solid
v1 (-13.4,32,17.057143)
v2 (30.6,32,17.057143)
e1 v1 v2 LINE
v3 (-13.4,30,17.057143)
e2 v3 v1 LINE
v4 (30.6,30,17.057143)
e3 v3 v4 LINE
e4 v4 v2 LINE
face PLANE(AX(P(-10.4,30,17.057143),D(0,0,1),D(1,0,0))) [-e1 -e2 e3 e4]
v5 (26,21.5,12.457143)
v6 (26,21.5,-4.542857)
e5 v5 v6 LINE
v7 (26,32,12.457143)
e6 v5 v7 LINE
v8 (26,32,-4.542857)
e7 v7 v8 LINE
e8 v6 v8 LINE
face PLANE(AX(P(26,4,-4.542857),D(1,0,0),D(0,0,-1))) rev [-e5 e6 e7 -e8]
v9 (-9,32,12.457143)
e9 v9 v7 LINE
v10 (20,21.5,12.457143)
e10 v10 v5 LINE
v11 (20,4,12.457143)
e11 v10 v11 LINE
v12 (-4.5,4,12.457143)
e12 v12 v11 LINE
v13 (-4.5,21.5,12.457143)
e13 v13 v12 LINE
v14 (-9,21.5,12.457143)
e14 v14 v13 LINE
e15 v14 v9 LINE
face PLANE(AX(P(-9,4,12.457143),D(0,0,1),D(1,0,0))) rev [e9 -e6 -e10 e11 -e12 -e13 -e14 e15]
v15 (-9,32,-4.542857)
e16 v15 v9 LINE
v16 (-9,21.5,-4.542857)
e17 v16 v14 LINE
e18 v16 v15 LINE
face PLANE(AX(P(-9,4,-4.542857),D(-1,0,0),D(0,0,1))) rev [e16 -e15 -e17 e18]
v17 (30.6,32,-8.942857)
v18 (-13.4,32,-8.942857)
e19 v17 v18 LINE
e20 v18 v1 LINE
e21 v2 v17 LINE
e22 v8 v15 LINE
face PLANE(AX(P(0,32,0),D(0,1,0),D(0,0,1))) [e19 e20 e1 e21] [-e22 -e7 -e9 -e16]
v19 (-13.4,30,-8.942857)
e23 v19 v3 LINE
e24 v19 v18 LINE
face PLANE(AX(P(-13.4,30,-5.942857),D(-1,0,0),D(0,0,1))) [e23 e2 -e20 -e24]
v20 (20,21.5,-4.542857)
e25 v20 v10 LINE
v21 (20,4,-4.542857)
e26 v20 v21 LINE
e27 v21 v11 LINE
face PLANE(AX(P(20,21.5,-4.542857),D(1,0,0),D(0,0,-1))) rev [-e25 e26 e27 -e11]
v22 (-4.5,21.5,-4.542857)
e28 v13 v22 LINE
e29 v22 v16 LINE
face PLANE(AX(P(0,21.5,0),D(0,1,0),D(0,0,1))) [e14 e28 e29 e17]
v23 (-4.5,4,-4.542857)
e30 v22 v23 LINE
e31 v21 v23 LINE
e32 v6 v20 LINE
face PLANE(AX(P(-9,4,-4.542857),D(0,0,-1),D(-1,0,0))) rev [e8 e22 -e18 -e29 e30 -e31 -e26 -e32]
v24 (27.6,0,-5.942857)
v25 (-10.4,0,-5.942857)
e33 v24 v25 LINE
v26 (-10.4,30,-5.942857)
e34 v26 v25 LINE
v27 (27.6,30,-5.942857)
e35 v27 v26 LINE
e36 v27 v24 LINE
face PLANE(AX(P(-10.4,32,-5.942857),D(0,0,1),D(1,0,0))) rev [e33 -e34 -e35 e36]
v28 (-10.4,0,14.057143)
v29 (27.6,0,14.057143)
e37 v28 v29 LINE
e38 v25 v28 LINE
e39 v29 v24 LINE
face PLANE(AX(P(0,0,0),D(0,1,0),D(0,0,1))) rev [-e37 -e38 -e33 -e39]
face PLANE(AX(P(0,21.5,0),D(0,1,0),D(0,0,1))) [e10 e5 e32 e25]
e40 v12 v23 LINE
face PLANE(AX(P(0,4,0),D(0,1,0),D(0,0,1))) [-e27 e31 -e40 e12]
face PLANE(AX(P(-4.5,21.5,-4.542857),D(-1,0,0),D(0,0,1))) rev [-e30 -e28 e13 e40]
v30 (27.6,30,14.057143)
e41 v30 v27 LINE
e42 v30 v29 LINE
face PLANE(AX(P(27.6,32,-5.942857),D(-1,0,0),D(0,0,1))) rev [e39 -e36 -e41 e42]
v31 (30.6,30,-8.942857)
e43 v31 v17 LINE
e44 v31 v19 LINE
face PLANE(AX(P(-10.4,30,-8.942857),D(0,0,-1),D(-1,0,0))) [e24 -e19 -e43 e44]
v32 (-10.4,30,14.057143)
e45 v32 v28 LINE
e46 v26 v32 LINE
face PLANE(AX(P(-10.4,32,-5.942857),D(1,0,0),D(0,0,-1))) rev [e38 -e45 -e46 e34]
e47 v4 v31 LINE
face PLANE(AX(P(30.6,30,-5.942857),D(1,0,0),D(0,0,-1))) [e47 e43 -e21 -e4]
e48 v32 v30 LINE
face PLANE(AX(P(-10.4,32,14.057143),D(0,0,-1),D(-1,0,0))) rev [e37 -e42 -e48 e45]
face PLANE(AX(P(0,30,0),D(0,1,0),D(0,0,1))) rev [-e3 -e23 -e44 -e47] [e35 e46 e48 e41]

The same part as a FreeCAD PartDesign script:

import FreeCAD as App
import Part
import Sketcher
from FreeCAD import Vector

doc = App.newDocument("Part")
body = doc.addObject("PartDesign::Body", "Body")

# Sketch on XZ plane
sketch1 = doc.addObject("Sketcher::SketchObject", "Sketch")
body.addObject(sketch1)
sketch1.AttachmentSupport = (doc.XZ_Plane, [""])
sketch1.MapMode = "FlatFace"
sketch1.addGeometry(Part.LineSegment(Vector(-10.4, -5.942857, 0), Vector(-10.4, 14.057143, 0)), False)
sketch1.addGeometry(Part.LineSegment(Vector(-10.4, 14.057143, 0), Vector(27.6, 14.057143, 0)), False)
sketch1.addGeometry(Part.LineSegment(Vector(27.6, 14.057143, 0), Vector(27.6, -5.942857, 0)), False)
sketch1.addGeometry(Part.LineSegment(Vector(27.6, -5.942857, 0), Vector(-10.4, -5.942857, 0)), False)
sketch1.addConstraint(Sketcher.Constraint("Coincident", 0, 2, 1, 1))
sketch1.addConstraint(Sketcher.Constraint("Coincident", 1, 2, 2, 1))
sketch1.addConstraint(Sketcher.Constraint("Coincident", 2, 2, 3, 1))
sketch1.addConstraint(Sketcher.Constraint("Coincident", 3, 2, 0, 1))
sketch1.addConstraint(Sketcher.Constraint("Vertical", 0))
sketch1.addConstraint(Sketcher.Constraint("Horizontal", 1))
sketch1.addConstraint(Sketcher.Constraint("Vertical", 2))
sketch1.addConstraint(Sketcher.Constraint("Horizontal", 3))
sketch1.addConstraint(Sketcher.Constraint("DistanceX", 1, 1, 1, 2, 38.0))
sketch1.addConstraint(Sketcher.Constraint("DistanceY", 0, 1, 0, 2, 20.0))
sketch1.addConstraint(Sketcher.Constraint("DistanceX", 0, 2, -1, 1, 10.4))
sketch1.addConstraint(Sketcher.Constraint("DistanceY", -1, 1, 0, 2, 14.057143))
pad1 = doc.addObject("PartDesign::Pad", "Pad")
body.addObject(pad1)
pad1.Profile = sketch1
pad1.Length = 32
pad1.Reversed = True

# Sketch on XZ plane
sketch2 = doc.addObject("Sketcher::SketchObject", "Sketch001")
body.addObject(sketch2)
sketch2.AttachmentSupport = (doc.XZ_Plane, [""])
sketch2.MapMode = "FlatFace"
sketch2.AttachmentOffset = App.Placement(Vector(0, 0, -32), App.Rotation())
sketch2.addGeometry(Part.LineSegment(Vector(-9, -4.542857, 0), Vector(-9, 12.457143, 0)), False)
sketch2.addGeometry(Part.LineSegment(Vector(-9, 12.457143, 0), Vector(26, 12.457143, 0)), False)
sketch2.addGeometry(Part.LineSegment(Vector(26, 12.457143, 0), Vector(26, -4.542857, 0)), False)
sketch2.addGeometry(Part.LineSegment(Vector(26, -4.542857, 0), Vector(-9, -4.542857, 0)), False)
sketch2.addConstraint(Sketcher.Constraint("Coincident", 0, 2, 1, 1))
sketch2.addConstraint(Sketcher.Constraint("Coincident", 1, 2, 2, 1))
sketch2.addConstraint(Sketcher.Constraint("Coincident", 2, 2, 3, 1))
sketch2.addConstraint(Sketcher.Constraint("Coincident", 3, 2, 0, 1))
sketch2.addConstraint(Sketcher.Constraint("Vertical", 0))
sketch2.addConstraint(Sketcher.Constraint("Horizontal", 1))
sketch2.addConstraint(Sketcher.Constraint("Vertical", 2))
sketch2.addConstraint(Sketcher.Constraint("Horizontal", 3))
sketch2.addConstraint(Sketcher.Constraint("DistanceX", 1, 1, 1, 2, 35.0))
sketch2.addConstraint(Sketcher.Constraint("DistanceY", 0, 1, 0, 2, 17.0))
sketch2.addConstraint(Sketcher.Constraint("DistanceX", 0, 2, -1, 1, 9.0))
sketch2.addConstraint(Sketcher.Constraint("DistanceY", -1, 1, 0, 2, 12.457143))
pocket1 = doc.addObject("PartDesign::Pocket", "Pocket")
body.addObject(pocket1)
pocket1.Profile = sketch2
pocket1.Length = 28
pocket1.Reversed = True

# Sketch on XZ plane
sketch3 = doc.addObject("Sketcher::SketchObject", "Sketch002")
body.addObject(sketch3)
sketch3.AttachmentSupport = (doc.XZ_Plane, [""])
sketch3.MapMode = "FlatFace"
sketch3.AttachmentOffset = App.Placement(Vector(0, 0, -4), App.Rotation())
sketch3.addGeometry(Part.LineSegment(Vector(-9, -4.542857, 0), Vector(-9, 12.457143, 0)), False)
sketch3.addGeometry(Part.LineSegment(Vector(-9, 12.457143, 0), Vector(-4.5, 12.457143, 0)), False)
sketch3.addGeometry(Part.LineSegment(Vector(-4.5, 12.457143, 0), Vector(-4.5, -4.542857, 0)), False)
sketch3.addGeometry(Part.LineSegment(Vector(-4.5, -4.542857, 0), Vector(-9, -4.542857, 0)), False)
sketch3.addGeometry(Part.LineSegment(Vector(20, -4.542857, 0), Vector(20, 12.457143, 0)), False)
sketch3.addGeometry(Part.LineSegment(Vector(20, 12.457143, 0), Vector(26, 12.457143, 0)), False)
sketch3.addGeometry(Part.LineSegment(Vector(26, 12.457143, 0), Vector(26, -4.542857, 0)), False)
sketch3.addGeometry(Part.LineSegment(Vector(26, -4.542857, 0), Vector(20, -4.542857, 0)), False)
sketch3.addConstraint(Sketcher.Constraint("Coincident", 0, 2, 1, 1))
sketch3.addConstraint(Sketcher.Constraint("Coincident", 1, 2, 2, 1))
sketch3.addConstraint(Sketcher.Constraint("Coincident", 2, 2, 3, 1))
sketch3.addConstraint(Sketcher.Constraint("Coincident", 3, 2, 0, 1))
sketch3.addConstraint(Sketcher.Constraint("Coincident", 4, 2, 5, 1))
sketch3.addConstraint(Sketcher.Constraint("Coincident", 5, 2, 6, 1))
sketch3.addConstraint(Sketcher.Constraint("Coincident", 6, 2, 7, 1))
sketch3.addConstraint(Sketcher.Constraint("Coincident", 7, 2, 4, 1))
sketch3.addConstraint(Sketcher.Constraint("Vertical", 0))
sketch3.addConstraint(Sketcher.Constraint("Horizontal", 1))
sketch3.addConstraint(Sketcher.Constraint("Vertical", 2))
sketch3.addConstraint(Sketcher.Constraint("Horizontal", 3))
sketch3.addConstraint(Sketcher.Constraint("Vertical", 4))
sketch3.addConstraint(Sketcher.Constraint("Horizontal", 5))
sketch3.addConstraint(Sketcher.Constraint("Vertical", 6))
sketch3.addConstraint(Sketcher.Constraint("Horizontal", 7))
sketch3.addConstraint(Sketcher.Constraint("Horizontal", 1, 2, 4, 2))
sketch3.addConstraint(Sketcher.Constraint("Horizontal", 3, 2, 6, 2))
sketch3.addConstraint(Sketcher.Constraint("DistanceX", 5, 1, 5, 2, 6.0))
sketch3.addConstraint(Sketcher.Constraint("DistanceY", 0, 1, 0, 2, 17.0))
sketch3.addConstraint(Sketcher.Constraint("DistanceX", 1, 1, 1, 2, 4.5))
sketch3.addConstraint(Sketcher.Constraint("DistanceX", 0, 2, -1, 1, 9.0))
sketch3.addConstraint(Sketcher.Constraint("DistanceX", -1, 1, 4, 2, 20.0))
sketch3.addConstraint(Sketcher.Constraint("DistanceY", -1, 1, 0, 2, 12.457143))
pad2 = doc.addObject("PartDesign::Pad", "Pad001")
body.addObject(pad2)
pad2.Profile = sketch3
pad2.Length = 17.5
pad2.Reversed = True

# Sketch on XZ plane
sketch4 = doc.addObject("Sketcher::SketchObject", "Sketch003")
body.addObject(sketch4)
sketch4.AttachmentSupport = (doc.XZ_Plane, [""])
sketch4.MapMode = "FlatFace"
sketch4.AttachmentOffset = App.Placement(Vector(0, 0, -32), App.Rotation())
sketch4.addGeometry(Part.LineSegment(Vector(-13.4, -8.942857, 0), Vector(-13.4, 17.057143, 0)), False)
sketch4.addGeometry(Part.LineSegment(Vector(-13.4, 17.057143, 0), Vector(30.6, 17.057143, 0)), False)
sketch4.addGeometry(Part.LineSegment(Vector(30.6, 17.057143, 0), Vector(30.6, -8.942857, 0)), False)
sketch4.addGeometry(Part.LineSegment(Vector(30.6, -8.942857, 0), Vector(-13.4, -8.942857, 0)), False)
sketch4.addGeometry(Part.LineSegment(Vector(27.6, 14.057143, 0), Vector(-10.4, 14.057143, 0)), False)
sketch4.addGeometry(Part.LineSegment(Vector(-10.4, 14.057143, 0), Vector(-10.4, -5.942857, 0)), False)
sketch4.addGeometry(Part.LineSegment(Vector(-10.4, -5.942857, 0), Vector(27.6, -5.942857, 0)), False)
sketch4.addGeometry(Part.LineSegment(Vector(27.6, -5.942857, 0), Vector(27.6, 14.057143, 0)), False)
sketch4.addConstraint(Sketcher.Constraint("Coincident", 0, 2, 1, 1))
sketch4.addConstraint(Sketcher.Constraint("Coincident", 1, 2, 2, 1))
sketch4.addConstraint(Sketcher.Constraint("Coincident", 2, 2, 3, 1))
sketch4.addConstraint(Sketcher.Constraint("Coincident", 3, 2, 0, 1))
sketch4.addConstraint(Sketcher.Constraint("Coincident", 4, 2, 5, 1))
sketch4.addConstraint(Sketcher.Constraint("Coincident", 5, 2, 6, 1))
sketch4.addConstraint(Sketcher.Constraint("Coincident", 6, 2, 7, 1))
sketch4.addConstraint(Sketcher.Constraint("Coincident", 7, 2, 4, 1))
sketch4.addConstraint(Sketcher.Constraint("Vertical", 0))
sketch4.addConstraint(Sketcher.Constraint("Horizontal", 1))
sketch4.addConstraint(Sketcher.Constraint("Vertical", 2))
sketch4.addConstraint(Sketcher.Constraint("Horizontal", 3))
sketch4.addConstraint(Sketcher.Constraint("Horizontal", 4))
sketch4.addConstraint(Sketcher.Constraint("Vertical", 5))
sketch4.addConstraint(Sketcher.Constraint("Horizontal", 6))
sketch4.addConstraint(Sketcher.Constraint("Vertical", 7))
sketch4.addConstraint(Sketcher.Constraint("DistanceX", 1, 1, 1, 2, 44.0))
sketch4.addConstraint(Sketcher.Constraint("DistanceX", 4, 2, 4, 1, 38.0))
sketch4.addConstraint(Sketcher.Constraint("DistanceY", 0, 1, 0, 2, 26.0))
sketch4.addConstraint(Sketcher.Constraint("DistanceY", 5, 2, 5, 1, 20.0))
sketch4.addConstraint(Sketcher.Constraint("DistanceX", 0, 2, 4, 2, 3.0))
sketch4.addConstraint(Sketcher.Constraint("DistanceY", 4, 2, 0, 2, 3.0))
sketch4.addConstraint(Sketcher.Constraint("DistanceX", 0, 2, -1, 1, 13.4))
sketch4.addConstraint(Sketcher.Constraint("DistanceY", -1, 1, 0, 2, 17.057143))
pad3 = doc.addObject("PartDesign::Pad", "Pad002")
body.addObject(pad3)
pad3.Profile = sketch4
pad3.Length = 2

doc.recompute()
